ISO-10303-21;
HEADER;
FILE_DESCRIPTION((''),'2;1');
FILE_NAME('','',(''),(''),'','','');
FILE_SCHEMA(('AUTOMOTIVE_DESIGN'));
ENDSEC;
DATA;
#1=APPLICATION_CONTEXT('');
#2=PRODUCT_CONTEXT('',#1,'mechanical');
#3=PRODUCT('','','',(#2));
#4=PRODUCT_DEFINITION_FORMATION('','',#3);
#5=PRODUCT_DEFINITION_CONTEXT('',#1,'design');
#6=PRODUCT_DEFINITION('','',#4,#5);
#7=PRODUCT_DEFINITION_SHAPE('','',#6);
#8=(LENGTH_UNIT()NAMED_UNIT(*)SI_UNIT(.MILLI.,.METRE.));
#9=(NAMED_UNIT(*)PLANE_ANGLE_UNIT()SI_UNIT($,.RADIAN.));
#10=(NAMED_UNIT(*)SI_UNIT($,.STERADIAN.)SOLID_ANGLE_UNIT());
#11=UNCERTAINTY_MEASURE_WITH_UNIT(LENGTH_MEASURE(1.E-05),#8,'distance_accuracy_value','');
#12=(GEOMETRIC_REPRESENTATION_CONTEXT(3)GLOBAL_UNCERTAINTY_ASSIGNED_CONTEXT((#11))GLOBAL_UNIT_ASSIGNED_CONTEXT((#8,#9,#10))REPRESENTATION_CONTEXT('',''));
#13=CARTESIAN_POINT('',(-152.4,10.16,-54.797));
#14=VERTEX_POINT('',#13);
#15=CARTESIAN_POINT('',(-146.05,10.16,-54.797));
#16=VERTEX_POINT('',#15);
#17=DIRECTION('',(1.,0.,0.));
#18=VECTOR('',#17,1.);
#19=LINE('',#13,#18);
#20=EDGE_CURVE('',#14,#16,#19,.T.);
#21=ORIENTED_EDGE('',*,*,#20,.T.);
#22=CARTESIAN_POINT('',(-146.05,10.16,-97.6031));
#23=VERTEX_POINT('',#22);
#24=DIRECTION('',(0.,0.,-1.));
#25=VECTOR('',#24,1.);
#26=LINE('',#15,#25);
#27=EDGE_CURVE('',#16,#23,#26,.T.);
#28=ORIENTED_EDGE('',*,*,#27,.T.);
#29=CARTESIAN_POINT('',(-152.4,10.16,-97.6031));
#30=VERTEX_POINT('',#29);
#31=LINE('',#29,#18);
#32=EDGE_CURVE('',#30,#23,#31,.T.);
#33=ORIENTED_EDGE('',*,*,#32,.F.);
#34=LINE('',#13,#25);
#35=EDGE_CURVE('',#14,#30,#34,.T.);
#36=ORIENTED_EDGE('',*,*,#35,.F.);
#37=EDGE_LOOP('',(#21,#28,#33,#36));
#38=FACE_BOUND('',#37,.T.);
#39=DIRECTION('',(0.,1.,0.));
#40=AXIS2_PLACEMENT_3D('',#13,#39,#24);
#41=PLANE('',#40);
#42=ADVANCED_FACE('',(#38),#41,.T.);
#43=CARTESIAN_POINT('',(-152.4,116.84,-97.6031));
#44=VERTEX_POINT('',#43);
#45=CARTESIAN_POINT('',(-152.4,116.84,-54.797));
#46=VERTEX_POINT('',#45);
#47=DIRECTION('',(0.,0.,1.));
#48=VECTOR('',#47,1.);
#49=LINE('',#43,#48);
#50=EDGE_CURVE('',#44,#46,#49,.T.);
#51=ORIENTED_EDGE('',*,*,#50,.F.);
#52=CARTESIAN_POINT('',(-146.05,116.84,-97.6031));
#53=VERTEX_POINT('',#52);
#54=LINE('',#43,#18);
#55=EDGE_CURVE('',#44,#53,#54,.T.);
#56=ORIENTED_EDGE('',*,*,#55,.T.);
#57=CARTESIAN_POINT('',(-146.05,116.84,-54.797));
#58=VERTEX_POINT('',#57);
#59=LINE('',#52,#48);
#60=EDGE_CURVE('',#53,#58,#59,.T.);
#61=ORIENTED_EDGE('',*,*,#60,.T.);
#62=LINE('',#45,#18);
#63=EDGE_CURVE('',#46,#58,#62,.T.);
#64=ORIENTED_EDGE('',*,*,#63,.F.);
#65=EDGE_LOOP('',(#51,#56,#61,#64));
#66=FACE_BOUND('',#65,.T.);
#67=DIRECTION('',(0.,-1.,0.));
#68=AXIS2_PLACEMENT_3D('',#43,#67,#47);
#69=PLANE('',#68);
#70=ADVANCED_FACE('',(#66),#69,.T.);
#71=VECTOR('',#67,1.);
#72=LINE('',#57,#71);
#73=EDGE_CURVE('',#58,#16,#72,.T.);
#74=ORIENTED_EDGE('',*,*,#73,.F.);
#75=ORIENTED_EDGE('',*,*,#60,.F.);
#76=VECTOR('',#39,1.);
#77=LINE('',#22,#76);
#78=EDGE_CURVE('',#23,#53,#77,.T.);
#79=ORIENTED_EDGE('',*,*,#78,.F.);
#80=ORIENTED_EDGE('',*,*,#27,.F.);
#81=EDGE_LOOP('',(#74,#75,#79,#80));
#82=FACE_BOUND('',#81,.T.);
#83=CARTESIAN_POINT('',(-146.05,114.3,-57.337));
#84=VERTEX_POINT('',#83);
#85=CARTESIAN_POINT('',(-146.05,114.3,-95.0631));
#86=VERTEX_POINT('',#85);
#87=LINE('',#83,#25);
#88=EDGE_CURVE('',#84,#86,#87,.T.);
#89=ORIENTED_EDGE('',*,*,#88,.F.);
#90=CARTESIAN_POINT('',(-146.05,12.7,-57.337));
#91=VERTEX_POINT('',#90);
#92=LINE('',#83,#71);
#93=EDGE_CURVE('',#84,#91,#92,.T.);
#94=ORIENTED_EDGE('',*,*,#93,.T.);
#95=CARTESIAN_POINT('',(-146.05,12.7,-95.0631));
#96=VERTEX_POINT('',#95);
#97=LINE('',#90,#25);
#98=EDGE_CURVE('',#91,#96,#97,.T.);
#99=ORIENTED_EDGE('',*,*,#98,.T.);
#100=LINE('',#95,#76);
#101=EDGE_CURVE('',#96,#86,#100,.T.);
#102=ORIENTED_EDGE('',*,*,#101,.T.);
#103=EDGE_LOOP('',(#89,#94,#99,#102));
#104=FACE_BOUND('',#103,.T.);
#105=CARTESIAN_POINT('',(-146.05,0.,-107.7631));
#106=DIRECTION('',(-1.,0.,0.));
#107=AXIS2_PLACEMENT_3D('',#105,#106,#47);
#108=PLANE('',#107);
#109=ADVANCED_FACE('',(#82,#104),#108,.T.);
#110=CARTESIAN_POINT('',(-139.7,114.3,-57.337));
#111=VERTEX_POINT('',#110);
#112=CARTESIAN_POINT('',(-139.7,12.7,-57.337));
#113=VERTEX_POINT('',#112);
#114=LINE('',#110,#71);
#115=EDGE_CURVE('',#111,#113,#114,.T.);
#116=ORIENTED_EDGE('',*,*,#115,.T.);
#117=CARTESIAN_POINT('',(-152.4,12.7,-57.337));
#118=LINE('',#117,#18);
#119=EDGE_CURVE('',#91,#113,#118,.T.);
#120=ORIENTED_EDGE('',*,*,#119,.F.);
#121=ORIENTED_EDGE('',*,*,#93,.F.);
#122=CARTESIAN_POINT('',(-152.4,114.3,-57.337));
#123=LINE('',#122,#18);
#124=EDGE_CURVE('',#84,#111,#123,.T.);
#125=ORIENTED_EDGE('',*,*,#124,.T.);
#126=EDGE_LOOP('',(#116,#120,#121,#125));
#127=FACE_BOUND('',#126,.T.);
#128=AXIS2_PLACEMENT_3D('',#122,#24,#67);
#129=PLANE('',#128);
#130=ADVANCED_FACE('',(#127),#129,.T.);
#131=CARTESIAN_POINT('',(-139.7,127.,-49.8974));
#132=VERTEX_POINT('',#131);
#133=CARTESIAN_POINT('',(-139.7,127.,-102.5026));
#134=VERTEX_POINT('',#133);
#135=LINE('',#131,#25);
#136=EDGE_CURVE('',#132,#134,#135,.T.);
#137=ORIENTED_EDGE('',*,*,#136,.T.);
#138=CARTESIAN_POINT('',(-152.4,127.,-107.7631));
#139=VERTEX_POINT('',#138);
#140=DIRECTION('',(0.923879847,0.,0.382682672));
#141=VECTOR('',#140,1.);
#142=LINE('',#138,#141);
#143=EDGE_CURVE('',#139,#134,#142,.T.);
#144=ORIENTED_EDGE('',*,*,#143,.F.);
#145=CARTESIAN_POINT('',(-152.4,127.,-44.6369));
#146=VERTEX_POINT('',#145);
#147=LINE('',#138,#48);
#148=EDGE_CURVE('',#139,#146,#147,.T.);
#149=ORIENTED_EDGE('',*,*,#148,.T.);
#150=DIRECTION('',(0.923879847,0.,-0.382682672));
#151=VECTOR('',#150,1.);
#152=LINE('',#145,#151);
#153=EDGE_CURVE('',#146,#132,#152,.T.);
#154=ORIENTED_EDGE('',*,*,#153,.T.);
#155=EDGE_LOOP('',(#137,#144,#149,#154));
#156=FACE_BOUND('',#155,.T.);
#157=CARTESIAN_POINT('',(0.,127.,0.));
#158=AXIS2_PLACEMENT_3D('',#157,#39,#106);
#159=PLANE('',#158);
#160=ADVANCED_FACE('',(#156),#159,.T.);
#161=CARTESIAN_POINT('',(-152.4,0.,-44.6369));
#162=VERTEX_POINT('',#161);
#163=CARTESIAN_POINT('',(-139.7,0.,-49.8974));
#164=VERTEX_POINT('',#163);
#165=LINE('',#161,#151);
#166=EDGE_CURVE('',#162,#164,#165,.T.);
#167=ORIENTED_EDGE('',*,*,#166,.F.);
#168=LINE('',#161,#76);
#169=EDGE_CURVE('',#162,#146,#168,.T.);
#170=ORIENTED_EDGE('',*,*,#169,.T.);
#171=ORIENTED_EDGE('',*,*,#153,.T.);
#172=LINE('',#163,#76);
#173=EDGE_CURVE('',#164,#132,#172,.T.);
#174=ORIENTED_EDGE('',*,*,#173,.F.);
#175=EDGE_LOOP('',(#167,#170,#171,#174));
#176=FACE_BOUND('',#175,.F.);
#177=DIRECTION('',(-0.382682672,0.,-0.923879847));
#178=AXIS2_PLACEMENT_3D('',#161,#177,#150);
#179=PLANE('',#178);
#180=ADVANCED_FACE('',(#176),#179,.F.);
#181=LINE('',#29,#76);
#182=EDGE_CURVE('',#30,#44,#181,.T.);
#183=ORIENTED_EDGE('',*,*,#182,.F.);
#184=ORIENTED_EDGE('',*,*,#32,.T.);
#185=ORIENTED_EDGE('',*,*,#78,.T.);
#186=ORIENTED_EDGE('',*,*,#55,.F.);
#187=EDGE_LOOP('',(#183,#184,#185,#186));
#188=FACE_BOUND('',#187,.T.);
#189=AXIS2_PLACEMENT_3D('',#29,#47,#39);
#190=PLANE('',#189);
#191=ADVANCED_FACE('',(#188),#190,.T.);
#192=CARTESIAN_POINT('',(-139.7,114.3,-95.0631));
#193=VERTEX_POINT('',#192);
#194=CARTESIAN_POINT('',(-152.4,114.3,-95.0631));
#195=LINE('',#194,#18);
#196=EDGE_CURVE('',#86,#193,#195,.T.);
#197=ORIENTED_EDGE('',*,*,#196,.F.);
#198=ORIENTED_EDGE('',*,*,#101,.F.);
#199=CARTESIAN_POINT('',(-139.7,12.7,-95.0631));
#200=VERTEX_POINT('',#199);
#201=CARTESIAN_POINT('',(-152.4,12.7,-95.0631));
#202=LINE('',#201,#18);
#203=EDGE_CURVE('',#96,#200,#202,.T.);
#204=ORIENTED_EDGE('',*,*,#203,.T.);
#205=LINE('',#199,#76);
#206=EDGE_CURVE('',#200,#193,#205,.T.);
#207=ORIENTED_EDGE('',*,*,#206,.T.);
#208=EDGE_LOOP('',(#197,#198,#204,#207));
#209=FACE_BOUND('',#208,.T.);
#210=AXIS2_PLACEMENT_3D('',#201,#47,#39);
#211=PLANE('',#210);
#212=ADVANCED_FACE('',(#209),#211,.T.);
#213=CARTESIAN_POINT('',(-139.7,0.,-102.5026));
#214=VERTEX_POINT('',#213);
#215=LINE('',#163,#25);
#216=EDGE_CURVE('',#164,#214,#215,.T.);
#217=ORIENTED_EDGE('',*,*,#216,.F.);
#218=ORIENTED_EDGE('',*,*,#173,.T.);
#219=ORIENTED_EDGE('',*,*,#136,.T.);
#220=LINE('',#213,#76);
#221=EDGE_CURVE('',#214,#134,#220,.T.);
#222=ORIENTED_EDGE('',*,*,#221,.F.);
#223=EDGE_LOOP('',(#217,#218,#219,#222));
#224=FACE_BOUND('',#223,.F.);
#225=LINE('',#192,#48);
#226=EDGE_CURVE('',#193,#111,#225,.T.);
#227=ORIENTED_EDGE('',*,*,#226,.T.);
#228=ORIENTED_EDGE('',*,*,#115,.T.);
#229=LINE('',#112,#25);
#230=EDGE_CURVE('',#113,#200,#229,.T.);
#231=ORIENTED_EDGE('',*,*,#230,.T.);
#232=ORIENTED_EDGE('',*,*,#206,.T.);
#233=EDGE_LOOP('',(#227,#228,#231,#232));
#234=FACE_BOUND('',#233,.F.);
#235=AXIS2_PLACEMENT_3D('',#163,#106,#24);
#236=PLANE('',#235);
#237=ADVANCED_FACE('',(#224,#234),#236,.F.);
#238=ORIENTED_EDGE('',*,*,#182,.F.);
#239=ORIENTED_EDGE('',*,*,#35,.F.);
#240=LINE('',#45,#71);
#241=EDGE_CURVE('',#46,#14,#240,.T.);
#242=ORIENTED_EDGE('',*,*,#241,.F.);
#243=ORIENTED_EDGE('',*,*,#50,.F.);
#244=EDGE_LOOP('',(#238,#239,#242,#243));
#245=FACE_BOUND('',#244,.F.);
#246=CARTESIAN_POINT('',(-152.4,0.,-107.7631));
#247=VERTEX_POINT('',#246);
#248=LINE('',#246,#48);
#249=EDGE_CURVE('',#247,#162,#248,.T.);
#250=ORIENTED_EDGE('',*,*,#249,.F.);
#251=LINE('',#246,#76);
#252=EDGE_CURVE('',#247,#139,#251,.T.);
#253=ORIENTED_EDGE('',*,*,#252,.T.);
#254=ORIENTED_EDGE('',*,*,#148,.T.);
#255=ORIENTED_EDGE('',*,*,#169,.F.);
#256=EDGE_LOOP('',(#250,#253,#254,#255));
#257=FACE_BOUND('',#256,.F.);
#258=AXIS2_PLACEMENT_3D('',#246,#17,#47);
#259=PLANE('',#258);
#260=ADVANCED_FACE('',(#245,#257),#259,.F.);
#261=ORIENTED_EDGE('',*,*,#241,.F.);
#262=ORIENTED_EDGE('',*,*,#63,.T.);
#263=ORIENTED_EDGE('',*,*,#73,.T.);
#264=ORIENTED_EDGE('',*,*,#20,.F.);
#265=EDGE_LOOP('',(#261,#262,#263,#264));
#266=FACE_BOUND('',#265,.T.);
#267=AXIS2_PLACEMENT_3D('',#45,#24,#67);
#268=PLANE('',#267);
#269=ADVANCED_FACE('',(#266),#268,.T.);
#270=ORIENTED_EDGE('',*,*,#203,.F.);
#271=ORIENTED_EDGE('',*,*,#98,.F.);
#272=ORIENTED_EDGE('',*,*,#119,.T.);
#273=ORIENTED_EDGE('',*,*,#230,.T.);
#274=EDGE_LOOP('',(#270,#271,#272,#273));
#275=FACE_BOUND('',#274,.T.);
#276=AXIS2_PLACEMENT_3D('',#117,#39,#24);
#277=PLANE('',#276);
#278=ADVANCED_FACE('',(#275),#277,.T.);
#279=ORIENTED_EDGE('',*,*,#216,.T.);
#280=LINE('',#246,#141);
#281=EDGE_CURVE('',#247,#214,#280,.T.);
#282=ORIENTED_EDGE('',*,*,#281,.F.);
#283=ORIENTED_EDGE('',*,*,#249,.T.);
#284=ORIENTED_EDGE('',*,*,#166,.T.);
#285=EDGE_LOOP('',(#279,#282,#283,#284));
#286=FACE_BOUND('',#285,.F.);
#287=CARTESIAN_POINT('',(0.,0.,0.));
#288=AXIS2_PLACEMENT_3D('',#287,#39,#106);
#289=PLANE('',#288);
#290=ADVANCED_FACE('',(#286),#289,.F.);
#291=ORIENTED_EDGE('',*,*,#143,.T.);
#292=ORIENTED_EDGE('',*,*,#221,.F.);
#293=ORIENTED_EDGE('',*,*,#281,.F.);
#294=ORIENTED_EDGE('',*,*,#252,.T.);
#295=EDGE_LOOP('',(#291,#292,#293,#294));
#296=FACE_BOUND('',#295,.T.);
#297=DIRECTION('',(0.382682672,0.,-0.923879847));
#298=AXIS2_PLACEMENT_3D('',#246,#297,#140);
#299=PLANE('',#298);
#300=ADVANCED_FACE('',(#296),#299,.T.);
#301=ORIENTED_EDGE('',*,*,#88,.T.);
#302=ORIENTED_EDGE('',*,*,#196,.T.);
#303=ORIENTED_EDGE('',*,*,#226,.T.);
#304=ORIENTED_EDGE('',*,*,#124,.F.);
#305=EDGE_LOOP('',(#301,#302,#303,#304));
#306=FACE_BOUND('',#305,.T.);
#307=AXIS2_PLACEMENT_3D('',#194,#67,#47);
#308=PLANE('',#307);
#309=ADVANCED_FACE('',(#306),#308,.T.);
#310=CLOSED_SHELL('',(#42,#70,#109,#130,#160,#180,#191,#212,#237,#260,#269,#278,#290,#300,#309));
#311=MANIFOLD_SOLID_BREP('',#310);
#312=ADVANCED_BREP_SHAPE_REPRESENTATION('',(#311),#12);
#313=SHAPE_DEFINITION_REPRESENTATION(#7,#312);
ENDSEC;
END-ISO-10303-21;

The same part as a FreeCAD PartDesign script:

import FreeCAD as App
import Part
import Sketcher
Q = App.Units.Quantity

doc = App.newDocument("Part")
params = doc.addObject("Spreadsheet::Sheet", "Params")
for row, (alias, value) in enumerate([
    ("pad1_length", "5 in"),
    ("sketch2_width", "4 in"),
    ("pocket1_length", "0.5 in"),
    ("sketch3_width", "4 in"),
    ("sketch3_width2", "4.2 in"),
    ("pocket2_length", "0.25 in"),
], start=1):
    params.set(f"A{row}", alias)
    params.set(f"B{row}", "=" + value)
    params.setAlias(f"B{row}", alias)

body = doc.addObject("PartDesign::Body", "Body")

sketch1 = doc.addObject("Sketcher::SketchObject", "Sketch")
body.addObject(sketch1)
sketch1.AttachmentSupport = (doc.XZ_Plane, [""])
sketch1.MapMode = "FlatFace"
sketch1.addGeometry([
    Part.LineSegment(App.Vector(-152, -108, 0), App.Vector(-152, -45, 0)),
    Part.LineSegment(App.Vector(-152, -45, 0), App.Vector(-140, -50, 0)),
    Part.LineSegment(App.Vector(-140, -50, 0), App.Vector(-140, -103, 0)),
    Part.LineSegment(App.Vector(-140, -103, 0), App.Vector(-152, -108, 0)),
], False)
sketch1.addConstraint([
    Sketcher.Constraint("Coincident", 0, 2, 1, 1),
    Sketcher.Constraint("Coincident", 1, 2, 2, 1),
    Sketcher.Constraint("Coincident", 2, 2, 3, 1),
    Sketcher.Constraint("Coincident", 3, 2, 0, 1),
    Sketcher.Constraint("Vertical", 0),
    Sketcher.Constraint("Vertical", 2),
    Sketcher.Constraint("Equal", 1, 3),
    Sketcher.Constraint("DistanceX", 0, 2, -1, 1, Q("6 in")),
    Sketcher.Constraint("DistanceX", 0, 2, 1, 2, Q("0.5 in")),
    Sketcher.Constraint("DistanceY", 0, 1, 0, 2, Q("63.1262 mm")),
    Sketcher.Constraint("DistanceY", 2, 2, 2, 1, Q("52.6052 mm")),
    Sketcher.Constraint("DistanceY", 0, 2, -1, 1, Q("44.637 mm")),
])
pad1 = doc.addObject("PartDesign::Pad", "Pad")
body.addObject(pad1)
pad1.Profile = sketch1
pad1.setExpression("Length", "Params.pad1_length")
pad1.Reversed = True

sketch2 = doc.addObject("Sketcher::SketchObject", "Sketch001")
body.addObject(sketch2)
sketch2.AttachmentSupport = (doc.YZ_Plane, [""])
sketch2.MapMode = "FlatFace"
sketch2.AttachmentOffset = App.Placement(App.Vector(0, 0, -6 * 25.4), App.Rotation())
sketch2.addGeometry([
    Part.LineSegment(App.Vector(114, -57, 0), App.Vector(114, -95, 0)),
    Part.LineSegment(App.Vector(114, -95, 0), App.Vector(13, -95, 0)),
    Part.LineSegment(App.Vector(13, -95, 0), App.Vector(13, -57, 0)),
    Part.LineSegment(App.Vector(13, -57, 0), App.Vector(114, -57, 0)),
], False)
sketch2.addConstraint([
    Sketcher.Constraint("Coincident", 0, 2, 1, 1),
    Sketcher.Constraint("Coincident", 1, 2, 2, 1),
    Sketcher.Constraint("Coincident", 2, 2, 3, 1),
    Sketcher.Constraint("Coincident", 3, 2, 0, 1),
    Sketcher.Constraint("Vertical", 0),
    Sketcher.Constraint("Horizontal", 1),
    Sketcher.Constraint("Vertical", 2),
    Sketcher.Constraint("Horizontal", 3),
    Sketcher.Constraint("DistanceX", -1, 1, 1, 2, Q("0.5 in")),
    Sketcher.Constraint("DistanceX", 1, 2, 1, 1, Q("4 in")),
    Sketcher.Constraint("DistanceY", 0, 2, 0, 1, Q("37.726 mm")),
    Sketcher.Constraint("DistanceY", 0, 2, -1, 1, Q("95.063 mm")),
])
sketch2.setExpression("Constraints[9]", "Params.sketch2_width")
pocket1 = doc.addObject("PartDesign::Pocket", "Pocket")
body.addObject(pocket1)
pocket1.Profile = sketch2
pocket1.setExpression("Length", "Params.pocket1_length")
pocket1.Reversed = True

sketch3 = doc.addObject("Sketcher::SketchObject", "Sketch002")
body.addObject(sketch3)
sketch3.AttachmentSupport = (doc.YZ_Plane, [""])
sketch3.MapMode = "FlatFace"
sketch3.AttachmentOffset = App.Placement(App.Vector(0, 0, -6 * 25.4), App.Rotation())
sketch3.addGeometry([
    Part.LineSegment(App.Vector(117, -55, 0), App.Vector(117, -98, 0)),
    Part.LineSegment(App.Vector(117, -98, 0), App.Vector(10, -98, 0)),
    Part.LineSegment(App.Vector(10, -98, 0), App.Vector(10, -55, 0)),
    Part.LineSegment(App.Vector(10, -55, 0), App.Vector(117, -55, 0)),
    Part.LineSegment(App.Vector(114, -95, 0), App.Vector(114, -57, 0)),
    Part.LineSegment(App.Vector(114, -57, 0), App.Vector(13, -57, 0)),
    Part.LineSegment(App.Vector(13, -57, 0), App.Vector(13, -95, 0)),
    Part.LineSegment(App.Vector(13, -95, 0), App.Vector(114, -95, 0)),
], False)
sketch3.addConstraint([
    Sketcher.Constraint("Coincident", 0, 2, 1, 1),
    Sketcher.Constraint("Coincident", 1, 2, 2, 1),
    Sketcher.Constraint("Coincident", 2, 2, 3, 1),
    Sketcher.Constraint("Coincident", 3, 2, 0, 1),
    Sketcher.Constraint("Coincident", 4, 2, 5, 1),
    Sketcher.Constraint("Coincident", 5, 2, 6, 1),
    Sketcher.Constraint("Coincident", 6, 2, 7, 1),
    Sketcher.Constraint("Coincident", 7, 2, 4, 1),
    Sketcher.Constraint("Vertical", 0),
    Sketcher.Constraint("Horizontal", 1),
    Sketcher.Constraint("Vertical", 2),
    Sketcher.Constraint("Horizontal", 3),
    Sketcher.Constraint("Vertical", 4),
    Sketcher.Constraint("Horizontal", 5),
    Sketcher.Constraint("Vertical", 6),
    Sketcher.Constraint("Horizontal", 7),
    Sketcher.Constraint("DistanceX", -1, 1, 1, 2, Q("0.4 in")),
    Sketcher.Constraint("DistanceX", 5, 2, 5, 1, Q("4 in")),
    Sketcher.Constraint("DistanceX", 1, 2, 1, 1, Q("4.2 in")),
    Sketcher.Constraint("DistanceX", -1, 1, 4, 2, Q("4.5 in")),
    Sketcher.Constraint("DistanceY", 4, 2, 3, 2, Q("0.1 in")),
    Sketcher.Constraint("DistanceY", 1, 2, 6, 2, Q("0.1 in")),
    Sketcher.Constraint("DistanceY", 0, 2, 0, 1, Q("42.806 mm")),
    Sketcher.Constraint("DistanceY", 0, 2, -1, 1, Q("97.603 mm")),
])
sketch3.setExpression("Constraints[17]", "Params.sketch3_width")
sketch3.setExpression("Constraints[18]", "Params.sketch3_width2")
pocket2 = doc.addObject("PartDesign::Pocket", "Pocket001")
body.addObject(pocket2)
pocket2.Profile = sketch3
pocket2.setExpression("Length", "Params.pocket2_length")
pocket2.Reversed = True

doc.recompute()
